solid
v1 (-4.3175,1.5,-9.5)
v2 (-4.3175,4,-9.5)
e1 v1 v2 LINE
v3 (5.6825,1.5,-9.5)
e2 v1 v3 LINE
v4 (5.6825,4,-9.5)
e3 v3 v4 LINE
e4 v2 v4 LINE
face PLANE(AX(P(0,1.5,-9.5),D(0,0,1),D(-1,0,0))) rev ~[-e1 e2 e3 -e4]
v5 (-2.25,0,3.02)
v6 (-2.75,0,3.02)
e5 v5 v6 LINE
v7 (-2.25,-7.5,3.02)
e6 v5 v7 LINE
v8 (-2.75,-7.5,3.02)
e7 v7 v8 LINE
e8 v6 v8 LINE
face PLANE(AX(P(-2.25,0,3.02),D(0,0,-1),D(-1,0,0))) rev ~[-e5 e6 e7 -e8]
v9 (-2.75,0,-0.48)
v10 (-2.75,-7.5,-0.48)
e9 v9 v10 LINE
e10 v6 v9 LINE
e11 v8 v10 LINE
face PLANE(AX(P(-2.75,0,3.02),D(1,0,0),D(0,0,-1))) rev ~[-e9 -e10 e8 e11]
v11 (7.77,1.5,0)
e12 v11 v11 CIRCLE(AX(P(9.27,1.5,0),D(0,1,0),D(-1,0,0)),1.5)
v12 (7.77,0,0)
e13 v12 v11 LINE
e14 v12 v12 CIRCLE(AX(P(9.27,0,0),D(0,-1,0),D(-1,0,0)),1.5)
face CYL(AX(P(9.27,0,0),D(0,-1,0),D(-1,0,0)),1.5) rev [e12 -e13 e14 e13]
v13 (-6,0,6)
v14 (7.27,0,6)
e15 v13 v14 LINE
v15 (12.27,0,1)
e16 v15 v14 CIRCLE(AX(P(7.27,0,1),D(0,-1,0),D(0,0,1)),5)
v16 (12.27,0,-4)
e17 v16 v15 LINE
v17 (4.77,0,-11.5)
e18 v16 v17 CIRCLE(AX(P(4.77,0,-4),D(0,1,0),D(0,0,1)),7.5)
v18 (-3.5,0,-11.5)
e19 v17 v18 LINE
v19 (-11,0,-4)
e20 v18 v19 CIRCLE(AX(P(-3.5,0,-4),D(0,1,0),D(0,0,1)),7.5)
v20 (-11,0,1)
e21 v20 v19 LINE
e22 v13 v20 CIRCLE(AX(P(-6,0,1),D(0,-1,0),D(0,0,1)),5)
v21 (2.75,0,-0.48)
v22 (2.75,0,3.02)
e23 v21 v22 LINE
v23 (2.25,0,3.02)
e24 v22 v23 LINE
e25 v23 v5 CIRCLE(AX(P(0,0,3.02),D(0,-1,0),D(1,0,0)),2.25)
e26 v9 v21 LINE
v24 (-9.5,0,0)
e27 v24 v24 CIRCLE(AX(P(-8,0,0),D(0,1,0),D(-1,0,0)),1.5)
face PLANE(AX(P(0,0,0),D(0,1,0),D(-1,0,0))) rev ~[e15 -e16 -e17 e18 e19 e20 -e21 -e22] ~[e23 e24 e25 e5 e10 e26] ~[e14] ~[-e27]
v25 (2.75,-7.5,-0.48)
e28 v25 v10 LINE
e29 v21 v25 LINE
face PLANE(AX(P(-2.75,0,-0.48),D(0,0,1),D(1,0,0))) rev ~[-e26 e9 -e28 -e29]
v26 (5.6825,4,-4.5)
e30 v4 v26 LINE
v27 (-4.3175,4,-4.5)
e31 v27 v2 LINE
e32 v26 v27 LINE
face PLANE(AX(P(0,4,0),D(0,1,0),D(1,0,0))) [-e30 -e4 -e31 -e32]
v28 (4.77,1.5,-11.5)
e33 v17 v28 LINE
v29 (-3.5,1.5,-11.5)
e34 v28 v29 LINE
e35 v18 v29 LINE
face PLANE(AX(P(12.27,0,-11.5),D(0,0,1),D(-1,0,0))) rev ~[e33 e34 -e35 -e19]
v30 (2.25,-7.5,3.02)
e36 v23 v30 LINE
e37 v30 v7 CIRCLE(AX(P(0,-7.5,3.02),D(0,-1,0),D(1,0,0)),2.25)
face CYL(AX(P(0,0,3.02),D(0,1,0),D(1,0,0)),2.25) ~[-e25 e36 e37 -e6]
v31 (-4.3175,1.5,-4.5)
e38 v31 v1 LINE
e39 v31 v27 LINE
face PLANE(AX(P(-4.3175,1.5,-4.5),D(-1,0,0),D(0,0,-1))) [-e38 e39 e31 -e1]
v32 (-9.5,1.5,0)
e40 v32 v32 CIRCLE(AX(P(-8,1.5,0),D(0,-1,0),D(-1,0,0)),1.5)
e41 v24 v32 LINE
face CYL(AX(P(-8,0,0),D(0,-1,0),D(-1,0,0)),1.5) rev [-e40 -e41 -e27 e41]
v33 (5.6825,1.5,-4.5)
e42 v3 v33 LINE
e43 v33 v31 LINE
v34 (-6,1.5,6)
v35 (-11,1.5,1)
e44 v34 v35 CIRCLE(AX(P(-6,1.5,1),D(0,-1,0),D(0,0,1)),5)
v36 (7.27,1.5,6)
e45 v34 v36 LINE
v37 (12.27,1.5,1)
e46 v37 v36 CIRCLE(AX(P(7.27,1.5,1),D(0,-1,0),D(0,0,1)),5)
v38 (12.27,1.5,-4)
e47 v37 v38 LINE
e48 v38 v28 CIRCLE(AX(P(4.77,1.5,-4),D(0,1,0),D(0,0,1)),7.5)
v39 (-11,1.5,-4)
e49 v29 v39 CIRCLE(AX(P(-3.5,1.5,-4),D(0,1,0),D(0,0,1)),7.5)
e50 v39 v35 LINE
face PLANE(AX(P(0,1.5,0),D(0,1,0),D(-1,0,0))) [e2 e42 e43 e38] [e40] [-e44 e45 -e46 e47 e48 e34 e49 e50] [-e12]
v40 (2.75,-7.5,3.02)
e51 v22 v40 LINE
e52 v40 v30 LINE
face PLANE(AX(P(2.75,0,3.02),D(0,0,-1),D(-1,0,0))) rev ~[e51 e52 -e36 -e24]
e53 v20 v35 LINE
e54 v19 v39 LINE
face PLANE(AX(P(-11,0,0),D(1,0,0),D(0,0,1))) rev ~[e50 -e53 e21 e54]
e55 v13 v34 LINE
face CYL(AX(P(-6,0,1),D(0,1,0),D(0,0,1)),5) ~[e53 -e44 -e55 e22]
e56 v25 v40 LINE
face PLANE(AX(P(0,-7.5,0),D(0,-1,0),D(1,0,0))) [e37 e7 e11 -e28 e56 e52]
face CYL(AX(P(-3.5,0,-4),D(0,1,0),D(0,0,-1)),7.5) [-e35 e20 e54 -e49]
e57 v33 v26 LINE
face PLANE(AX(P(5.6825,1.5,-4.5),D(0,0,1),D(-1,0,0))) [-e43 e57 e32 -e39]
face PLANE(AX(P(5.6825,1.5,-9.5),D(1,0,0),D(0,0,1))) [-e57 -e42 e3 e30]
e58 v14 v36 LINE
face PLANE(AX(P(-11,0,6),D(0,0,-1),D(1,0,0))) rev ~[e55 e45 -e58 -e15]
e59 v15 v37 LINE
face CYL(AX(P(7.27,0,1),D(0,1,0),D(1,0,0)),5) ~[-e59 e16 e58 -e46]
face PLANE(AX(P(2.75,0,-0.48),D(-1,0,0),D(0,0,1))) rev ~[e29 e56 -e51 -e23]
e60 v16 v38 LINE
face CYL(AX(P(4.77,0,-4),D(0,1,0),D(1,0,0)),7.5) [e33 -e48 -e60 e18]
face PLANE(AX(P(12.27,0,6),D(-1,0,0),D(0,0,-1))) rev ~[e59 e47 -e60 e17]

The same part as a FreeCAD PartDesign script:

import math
import FreeCAD as App
import Part
import Sketcher
from FreeCAD import Vector
Q = App.Units.Quantity


def edges_at(feature, points):
    """Names of the edges that pass closest to the given points."""
    edges = feature.Shape.Edges
    near = lambda p: min(range(len(edges)), key=lambda i: edges[i].distToShape(Part.Vertex(*p))[0])
    return sorted({f"Edge{near(p) + 1}" for p in points})


def add_polygon(sketch, points):
    """Adds a closed chain of lines whose ends are joined by coincident constraints."""
    first, n = sketch.GeometryCount, len(points)
    for a, b in zip(points, points[1:] + points[:1]):
        sketch.addGeometry(Part.LineSegment(App.Vector(*a, 0), App.Vector(*b, 0)), False)
    for i in range(n):
        sketch.addConstraint(Sketcher.Constraint("Coincident", first + i, 2, first + (i + 1) % n, 1))

doc = App.newDocument("Part")
params = doc.addObject("Spreadsheet::Sheet", "Params")
for row, (alias, value) in enumerate([
    ("sketch1_diameter", "3 mm"),
    ("pad1_length", "1.5 mm"),
    ("fillet_radius", "5 mm"),
    ("fillet2_radius", "7.5 mm"),
    ("sketch2_width", "10 mm"),
    ("sketch2_height", "5 mm"),
    ("pad2_length", "2.5 mm"),
    ("sketch3_radius", "2.25 mm"),
    ("sketch3_width", "5.5 mm"),
    ("sketch3_height", "3.5 mm"),
    ("pad3_length", "7.5 mm"),
], start=1):
    params.set(f"A{row}", alias)
    params.set(f"B{row}", "=" + value)
    params.setAlias(f"B{row}", alias)

body = doc.addObject("PartDesign::Body", "Body")

sketch1 = doc.addObject("Sketcher::SketchObject", "Sketch")
body.addObject(sketch1)
sketch1.AttachmentSupport = (doc.XZ_Plane, [""])
sketch1.MapMode = "FlatFace"
add_polygon(sketch1, [(12.3, 6), (12.3, -11.5), (-11, -11.5), (-11, 6)])
sketch1.addGeometry(Part.Circle(Vector(9.3, 0, 0), Vector(0, 0, 1), 1.5), False)
sketch1.addGeometry(Part.Circle(Vector(-8, 0, 0), Vector(0, 0, 1), 1.5), False)
sketch1.addConstraint([
    Sketcher.Constraint("Vertical", 0),
    Sketcher.Constraint("Horizontal", 1),
    Sketcher.Constraint("Vertical", 2),
    Sketcher.Constraint("Horizontal", 3),
    Sketcher.Constraint("Equal", 4, 5),
    Sketcher.Constraint("PointOnObject", 4, 3, -1),
    Sketcher.Constraint("PointOnObject", 5, 3, -1),
    Sketcher.Constraint("Diameter", 4, Q("3 mm")),
    Sketcher.Constraint("DistanceX", 5, 3, -1, 1, Q("8 mm")),
    Sketcher.Constraint("DistanceY", -1, 1, 2, 2, Q("6 mm")),
    Sketcher.Constraint("DistanceX", 4, 3, 0, 2, Q("3 mm")),
    Sketcher.Constraint("DistanceX", 1, 2, 5, 3, Q("3 mm")),
    Sketcher.Constraint("DistanceY", 0, 2, -1, 1, Q("11.5 mm")),
    Sketcher.Constraint("DistanceX", -1, 1, 4, 3, Q("9.27 mm")),
])
sketch1.setExpression("Constraints[11]", "Params.sketch1_diameter")
pad1 = doc.addObject("PartDesign::Pad", "Pad")
body.addObject(pad1)
pad1.Profile = sketch1
pad1.setExpression("Length", "Params.pad1_length")
pad1.Reversed = True
doc.recompute()

fillet = doc.addObject("PartDesign::Fillet", "Fillet")
body.addObject(fillet)
fillet.Base = (pad1, edges_at(pad1, [(-11, 0.75, 6), (12.27, 0.75, 6)]))
fillet.setExpression("Radius", "Params.fillet_radius")
doc.recompute()

fillet2 = doc.addObject("PartDesign::Fillet", "Fillet001")
body.addObject(fillet2)
fillet2.Base = (fillet, edges_at(fillet, [(-11, 0.75, -11.5), (12.27, 0.75, -11.5)]))
fillet2.setExpression("Radius", "Params.fillet2_radius")

sketch2 = doc.addObject("Sketcher::SketchObject", "Sketch001")
body.addObject(sketch2)
sketch2.AttachmentSupport = (doc.XZ_Plane, [""])
sketch2.MapMode = "FlatFace"
sketch2.AttachmentOffset = App.Placement(Vector(0, 0, -1.5), App.Rotation())
add_polygon(sketch2, [(6, -10), (-4, -10), (-4, -4), (6, -4)])
sketch2.addConstraint([
    Sketcher.Constraint("Horizontal", 0),
    Sketcher.Constraint("Vertical", 1),
    Sketcher.Constraint("Horizontal", 2),
    Sketcher.Constraint("Vertical", 3),
    Sketcher.Constraint("DistanceX", 0, 2, 0, 1, Q("10 mm")),
    Sketcher.Constraint("DistanceY", 1, 1, 1, 2, Q("5 mm")),
    Sketcher.Constraint("DistanceX", 0, 2, -1, 1, Q("4.3175 mm")),
    Sketcher.Constraint("DistanceY", 0, 2, -1, 1, Q("9.5 mm")),
])
sketch2.setExpression("Constraints[8]", "Params.sketch2_width")
sketch2.setExpression("Constraints[9]", "Params.sketch2_height")
pad2 = doc.addObject("PartDesign::Pad", "Pad001")
body.addObject(pad2)
pad2.Profile = sketch2
pad2.setExpression("Length", "Params.pad2_length")
pad2.Reversed = True

sketch3 = doc.addObject("Sketcher::SketchObject", "Sketch002")
body.addObject(sketch3)
sketch3.AttachmentSupport = (doc.XZ_Plane, [""])
sketch3.MapMode = "FlatFace"
sketch3.addGeometry([
    Part.LineSegment(Vector(-2.8, -0.5, 0), Vector(2.8, -0.5, 0)),
    Part.LineSegment(Vector(2.8, -0.5, 0), Vector(2.8, 3, 0)),
    Part.LineSegment(Vector(2.8, 3, 0), Vector(2.2, 3, 0)),
    Part.ArcOfCircle(Part.Circle(Vector(0, 3, 0), Vector(0, 0, 1), 2.2), math.radians(0), math.radians(180)),
    Part.LineSegment(Vector(-2.2, 3, 0), Vector(-2.8, 3, 0)),
    Part.LineSegment(Vector(-2.8, 3, 0), Vector(-2.8, -0.5, 0)),
], False)
sketch3.addConstraint([
    Sketcher.Constraint("Coincident", 0, 2, 1, 1),
    Sketcher.Constraint("Coincident", 1, 2, 2, 1),
    Sketcher.Constraint("Coincident", 2, 2, 3, 1),
    Sketcher.Constraint("Coincident", 3, 2, 4, 1),
    Sketcher.Constraint("Coincident", 4, 2, 5, 1),
    Sketcher.Constraint("Coincident", 5, 2, 0, 1),
    Sketcher.Constraint("Horizontal", 0),
    Sketcher.Constraint("Vertical", 1),
    Sketcher.Constraint("Horizontal", 2),
    Sketcher.Constraint("Horizontal", 4),
    Sketcher.Constraint("Vertical", 5),
    Sketcher.Constraint("Symmetric", 2, 2, 3, 2, -2),
    Sketcher.Constraint("Horizontal", 3, 3, 1, 2),
    Sketcher.Constraint("Equal", 2, 4),
    Sketcher.Constraint("Radius", 3, Q("2.25 mm")),
    Sketcher.Constraint("DistanceX", 0, 1, 0, 2, Q("5.5 mm")),
    Sketcher.Constraint("DistanceY", 1, 1, 1, 2, Q("3.5 mm")),
    Sketcher.Constraint("DistanceY", 0, 2, -1, 1, Q("0.48 mm")),
])
sketch3.setExpression("Constraints[14]", "Params.sketch3_radius")
sketch3.setExpression("Constraints[15]", "Params.sketch3_width")
sketch3.setExpression("Constraints[16]", "Params.sketch3_height")
pad3 = doc.addObject("PartDesign::Pad", "Pad002")
body.addObject(pad3)
pad3.Profile = sketch3
pad3.setExpression("Length", "Params.pad3_length")

doc.recompute()
